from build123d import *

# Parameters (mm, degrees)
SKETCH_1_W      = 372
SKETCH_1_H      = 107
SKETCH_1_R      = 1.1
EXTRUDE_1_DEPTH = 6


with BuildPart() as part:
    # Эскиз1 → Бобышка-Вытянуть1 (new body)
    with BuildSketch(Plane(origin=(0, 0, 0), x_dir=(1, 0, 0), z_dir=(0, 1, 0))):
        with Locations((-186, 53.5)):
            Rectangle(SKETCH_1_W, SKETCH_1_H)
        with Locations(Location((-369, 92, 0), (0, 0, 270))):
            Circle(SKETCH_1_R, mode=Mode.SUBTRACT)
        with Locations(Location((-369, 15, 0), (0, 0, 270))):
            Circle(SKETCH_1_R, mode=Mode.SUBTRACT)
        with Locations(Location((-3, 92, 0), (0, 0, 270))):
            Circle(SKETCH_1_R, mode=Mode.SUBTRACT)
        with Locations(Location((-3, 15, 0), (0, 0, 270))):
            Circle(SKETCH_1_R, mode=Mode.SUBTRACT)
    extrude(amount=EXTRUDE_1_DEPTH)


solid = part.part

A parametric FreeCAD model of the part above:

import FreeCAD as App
import Part
import Sketcher
from FreeCAD import Vector
Q = App.Units.Quantity

doc = App.newDocument("Part")
body = doc.addObject("PartDesign::Body", "Body")

# Sketch on XZ plane
sketch1 = body.newObject("Sketcher::SketchObject", "Sketch")
sketch1.AttachmentSupport = (doc.getObject("XZ_Plane"), [""])
sketch1.MapMode = "FlatFace"
sketch1.addGeometry([
    Part.LineSegment(Vector(-372, -107, 0), Vector(-372, 0, 0)),  # 0
    Part.LineSegment(Vector(-372, 0, 0), Vector(0, 0, 0)),  # 1
    Part.LineSegment(Vector(0, 0, 0), Vector(0, -107, 0)),  # 2
    Part.LineSegment(Vector(0, -107, 0), Vector(-372, -107, 0)),  # 3
    Part.Circle(Vector(-369, -15, 0), Vector(0, 0, 1), 1.1),  # 4
    Part.Circle(Vector(-3, -15, 0), Vector(0, 0, 1), 1.1),  # 5
    Part.Circle(Vector(-369, -92, 0), Vector(0, 0, 1), 1.1),  # 6
    Part.Circle(Vector(-3, -92, 0), Vector(0, 0, 1), 1.1),  # 7
], False)
sketch1.addConstraint([
    Sketcher.Constraint("Coincident", 0, 2, 1, 1),
    Sketcher.Constraint("Coincident", 1, 2, 2, 1),
    Sketcher.Constraint("Coincident", 2, 2, 3, 1),
    Sketcher.Constraint("Coincident", 3, 2, 0, 1),
    Sketcher.Constraint("Vertical", 0),
    Sketcher.Constraint("Horizontal", 1),
    Sketcher.Constraint("Vertical", 2),
    Sketcher.Constraint("Horizontal", 3),
    Sketcher.Constraint("Coincident", 1, 2, -1, 1),
    Sketcher.Constraint("Equal", 4, 5),
    Sketcher.Constraint("Equal", 5, 6),
    Sketcher.Constraint("Equal", 6, 7),
    Sketcher.Constraint("Horizontal", 4, 3, 5, 3),
    Sketcher.Constraint("Horizontal", 6, 3, 7, 3),
    Sketcher.Constraint("Vertical", 4, 3, 6, 3),
    Sketcher.Constraint("Vertical", 5, 3, 7, 3),
    Sketcher.Constraint("Diameter", 4, Q("2.2 mm")),
    Sketcher.Constraint("DistanceX", 1, 1, 1, 2, Q("372 mm")),
    Sketcher.Constraint("DistanceY", 0, 1, 0, 2, Q("107 mm")),
    Sketcher.Constraint("DistanceX", 4, 3, -1, 1, Q("369 mm")),
    Sketcher.Constraint("DistanceY", 4, 3, -1, 1, Q("15 mm")),
    Sketcher.Constraint("DistanceX", 5, 3, -1, 1, Q("3 mm")),
    Sketcher.Constraint("DistanceY", 6, 3, -1, 1, Q("92 mm")),
])
pad1 = body.newObject("PartDesign::Pad", "Pad")
pad1.Profile = sketch1
pad1.Length = 6
pad1.Reversed = True

doc.recompute()
